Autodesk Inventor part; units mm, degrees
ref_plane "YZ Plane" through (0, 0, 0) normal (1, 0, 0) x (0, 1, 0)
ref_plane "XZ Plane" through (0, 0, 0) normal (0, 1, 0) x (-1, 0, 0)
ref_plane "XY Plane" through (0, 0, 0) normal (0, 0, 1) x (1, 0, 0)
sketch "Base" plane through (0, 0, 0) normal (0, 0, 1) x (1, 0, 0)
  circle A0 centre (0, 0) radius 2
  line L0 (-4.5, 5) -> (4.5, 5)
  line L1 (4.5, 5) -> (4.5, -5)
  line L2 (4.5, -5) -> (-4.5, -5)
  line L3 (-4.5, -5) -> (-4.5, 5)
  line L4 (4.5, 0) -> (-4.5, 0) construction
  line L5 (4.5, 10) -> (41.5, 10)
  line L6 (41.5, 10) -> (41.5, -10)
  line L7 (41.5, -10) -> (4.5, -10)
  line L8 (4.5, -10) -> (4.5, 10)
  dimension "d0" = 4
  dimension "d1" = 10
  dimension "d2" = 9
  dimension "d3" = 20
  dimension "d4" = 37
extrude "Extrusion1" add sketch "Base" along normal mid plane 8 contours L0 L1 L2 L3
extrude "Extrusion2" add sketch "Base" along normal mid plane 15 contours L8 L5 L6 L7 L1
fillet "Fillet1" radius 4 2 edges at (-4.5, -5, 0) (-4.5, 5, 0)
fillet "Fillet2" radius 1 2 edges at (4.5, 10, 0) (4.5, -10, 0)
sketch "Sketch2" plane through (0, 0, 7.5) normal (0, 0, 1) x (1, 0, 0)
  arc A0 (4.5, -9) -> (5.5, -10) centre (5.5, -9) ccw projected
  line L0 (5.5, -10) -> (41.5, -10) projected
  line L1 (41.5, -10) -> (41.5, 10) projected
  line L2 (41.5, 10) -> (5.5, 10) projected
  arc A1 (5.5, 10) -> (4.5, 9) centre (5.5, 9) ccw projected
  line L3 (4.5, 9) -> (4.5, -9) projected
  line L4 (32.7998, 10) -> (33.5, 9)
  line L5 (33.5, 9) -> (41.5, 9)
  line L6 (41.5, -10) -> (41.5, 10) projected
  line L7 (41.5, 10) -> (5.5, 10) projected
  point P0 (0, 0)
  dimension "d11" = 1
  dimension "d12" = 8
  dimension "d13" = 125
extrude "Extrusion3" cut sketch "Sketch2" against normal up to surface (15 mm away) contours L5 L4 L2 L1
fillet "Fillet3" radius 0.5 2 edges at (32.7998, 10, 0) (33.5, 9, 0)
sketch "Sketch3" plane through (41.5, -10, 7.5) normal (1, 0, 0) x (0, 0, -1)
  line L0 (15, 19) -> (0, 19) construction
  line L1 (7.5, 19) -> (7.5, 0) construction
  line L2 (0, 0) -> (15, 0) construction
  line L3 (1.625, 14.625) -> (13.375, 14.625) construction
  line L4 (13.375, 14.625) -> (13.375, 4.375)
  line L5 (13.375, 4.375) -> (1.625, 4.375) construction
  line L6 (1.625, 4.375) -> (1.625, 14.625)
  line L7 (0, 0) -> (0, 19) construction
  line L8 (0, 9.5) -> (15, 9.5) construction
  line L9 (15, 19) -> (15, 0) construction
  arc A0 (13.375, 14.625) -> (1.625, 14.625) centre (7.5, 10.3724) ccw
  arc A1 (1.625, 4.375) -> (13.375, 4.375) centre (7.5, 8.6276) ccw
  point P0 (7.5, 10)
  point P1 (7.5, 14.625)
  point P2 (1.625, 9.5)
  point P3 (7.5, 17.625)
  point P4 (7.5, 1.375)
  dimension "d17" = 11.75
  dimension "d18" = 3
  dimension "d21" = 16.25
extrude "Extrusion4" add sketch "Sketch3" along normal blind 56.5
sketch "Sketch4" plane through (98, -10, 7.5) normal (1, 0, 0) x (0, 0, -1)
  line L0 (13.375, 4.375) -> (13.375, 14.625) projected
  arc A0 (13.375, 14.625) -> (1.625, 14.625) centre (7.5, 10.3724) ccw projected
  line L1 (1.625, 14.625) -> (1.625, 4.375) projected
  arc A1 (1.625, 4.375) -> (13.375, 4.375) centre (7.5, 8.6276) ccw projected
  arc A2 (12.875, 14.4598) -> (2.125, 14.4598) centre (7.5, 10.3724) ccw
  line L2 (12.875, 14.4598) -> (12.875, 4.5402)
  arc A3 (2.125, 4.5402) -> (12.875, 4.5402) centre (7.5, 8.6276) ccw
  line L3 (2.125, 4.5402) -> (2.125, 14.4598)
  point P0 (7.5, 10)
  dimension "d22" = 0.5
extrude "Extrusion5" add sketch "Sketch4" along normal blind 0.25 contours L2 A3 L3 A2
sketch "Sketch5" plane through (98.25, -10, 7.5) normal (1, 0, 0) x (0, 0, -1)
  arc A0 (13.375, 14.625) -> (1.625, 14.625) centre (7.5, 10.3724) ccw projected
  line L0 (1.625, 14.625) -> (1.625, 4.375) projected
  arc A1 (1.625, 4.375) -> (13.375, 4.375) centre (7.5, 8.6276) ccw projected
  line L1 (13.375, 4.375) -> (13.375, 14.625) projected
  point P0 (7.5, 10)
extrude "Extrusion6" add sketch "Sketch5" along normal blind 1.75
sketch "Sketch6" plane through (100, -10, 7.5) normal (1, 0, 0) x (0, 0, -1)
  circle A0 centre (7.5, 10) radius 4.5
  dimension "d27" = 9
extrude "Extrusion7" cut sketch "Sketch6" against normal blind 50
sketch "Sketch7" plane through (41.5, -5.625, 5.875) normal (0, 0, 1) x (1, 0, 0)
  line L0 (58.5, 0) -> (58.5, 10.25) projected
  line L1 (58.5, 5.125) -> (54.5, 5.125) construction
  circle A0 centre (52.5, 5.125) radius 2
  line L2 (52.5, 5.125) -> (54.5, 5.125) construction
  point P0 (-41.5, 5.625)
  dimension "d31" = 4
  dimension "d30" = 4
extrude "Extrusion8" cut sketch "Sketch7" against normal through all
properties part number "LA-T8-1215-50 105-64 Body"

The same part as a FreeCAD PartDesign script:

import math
import FreeCAD as App
import Part
import Sketcher

V = App.Vector
Q = App.Units.Quantity


def edges_at(feature, points):
    """Names of the edges that pass closest to the given points."""
    edges = feature.Shape.Edges
    near = lambda p: min(range(len(edges)), key=lambda i: edges[i].distToShape(Part.Vertex(*p))[0])
    return sorted({f"Edge{near(p) + 1}" for p in points})


def add_polygon(sketch, points):
    """Adds a closed chain of lines whose ends are joined by coincident constraints."""
    first, n = sketch.GeometryCount, len(points)
    for a, b in zip(points, points[1:] + points[:1]):
        sketch.addGeometry(Part.LineSegment(App.Vector(*a, 0), App.Vector(*b, 0)), False)
    for i in range(n):
        sketch.addConstraint(Sketcher.Constraint("Coincident", first + i, 2, first + (i + 1) % n, 1))

doc = App.newDocument("Part")
body = doc.addObject("PartDesign::Body", "Body")

sketch1 = body.newObject("Sketcher::SketchObject", "Sketch")
sketch1.AttachmentSupport = (doc.getObject("XY_Plane"), [""])
sketch1.MapMode = "FlatFace"
add_polygon(sketch1, [(4.5, 5), (-4.5, 5), (-4.5, -5), (4.5, -5)])
sketch1.addGeometry(Part.Circle(V(0, 0, 0), V(0, 0, 1), 2), False)
sketch1.addConstraint([
    Sketcher.Constraint("Horizontal", 0),
    Sketcher.Constraint("Vertical", 1),
    Sketcher.Constraint("Horizontal", 2),
    Sketcher.Constraint("Vertical", 3),
    Sketcher.Constraint("Coincident", 4, 3, -1, 1),
    Sketcher.Constraint("Symmetric", 0, 2, 2, 2, -1, 1),
    Sketcher.Constraint("Diameter", 4, 4.0),
    Sketcher.Constraint("DistanceX", 0, 2, 0, 1, 9.0),
    Sketcher.Constraint("DistanceY", 1, 2, 1, 1, 10.0),
])
pad1 = body.newObject("PartDesign::Pad", "Pad")
pad1.Profile = sketch1
pad1.Length = 8
pad1.Midplane = True

sketch2 = body.newObject("Sketcher::SketchObject", "Sketch001")
sketch2.AttachmentSupport = (doc.getObject("XY_Plane"), [""])
sketch2.MapMode = "FlatFace"
add_polygon(sketch2, [(4.5, 10), (4.5, -10), (41.5, -10), (41.5, 10)])
sketch2.addConstraint([
    Sketcher.Constraint("Vertical", 0),
    Sketcher.Constraint("Horizontal", 1),
    Sketcher.Constraint("Vertical", 2),
    Sketcher.Constraint("Horizontal", 3),
    Sketcher.Constraint("DistanceX", 1, 1, 1, 2, 37.0),
    Sketcher.Constraint("DistanceY", 0, 2, 0, 1, 20.0),
    Sketcher.Constraint("DistanceY", 0, 2, -1, 1, 10.0),
    Sketcher.Constraint("DistanceX", -1, 1, 0, 2, 4.5),
])
pad2 = body.newObject("PartDesign::Pad", "Pad001")
pad2.Profile = sketch2
pad2.Length = 15
pad2.Midplane = True
doc.recompute()

fillet = body.newObject("PartDesign::Fillet", "Fillet")
fillet.Base = (pad2, edges_at(pad2, [(-4.5, -5, 0), (-4.5, 5, 0)]))
fillet.Radius = 4
doc.recompute()

fillet2 = body.newObject("PartDesign::Fillet", "Fillet001")
fillet2.Base = (fillet, edges_at(fillet, [(4.5, 10, 0), (4.5, -10, 0)]))
fillet2.Radius = 1

sketch3 = body.newObject("Sketcher::SketchObject", "Sketch002")
sketch3.AttachmentSupport = (doc.getObject("XY_Plane"), [""])
sketch3.MapMode = "FlatFace"
sketch3.AttachmentOffset = App.Placement(V(0, 0, 7.5), App.Rotation())
add_polygon(sketch3, [(33.5, 9), (41.5, 9), (41.5, 10), (32.7998, 10)])
sketch3.addConstraint([
    Sketcher.Constraint("Horizontal", 0),
    Sketcher.Constraint("Vertical", 1),
    Sketcher.Constraint("Horizontal", 2),
    Sketcher.Constraint("DistanceX", 0, 1, 0, 2, 8.0),
    Sketcher.Constraint("DistanceY", 1, 1, 1, 2, 1.0),
    Sketcher.Constraint("Angle", 3, Q("-55.0003 deg")),
    Sketcher.Constraint("DistanceY", -1, 1, 0, 2, 9.0),
    Sketcher.Constraint("DistanceX", -1, 1, 0, 2, 41.5),
])
pocket1 = body.newObject("PartDesign::Pocket", "Pocket")
pocket1.Profile = sketch3
pocket1.Length = 15
doc.recompute()

fillet3 = body.newObject("PartDesign::Fillet", "Fillet002")
fillet3.Base = (pocket1, edges_at(pocket1, [(32.8, 10, 0), (33.5, 9, 0)]))
fillet3.Radius = 0.5

sketch4 = body.newObject("Sketcher::SketchObject", "Sketch003")
sketch4.AttachmentSupport = (doc.getObject("YZ_Plane"), [""])
sketch4.MapMode = "FlatFace"
sketch4.AttachmentOffset = App.Placement(V(0, 0, 41.5), App.Rotation())
sketch4.addGeometry([
    Part.LineSegment(V(-5.625, -5.875, 0), V(4.625, -5.875, 0)),
    Part.ArcOfCircle(Part.Circle(V(0.3724, 0, 0), V(0, 0, 1), 7.252602), math.radians(-54.101221), math.radians(54.101221)),
    Part.LineSegment(V(4.625, 5.875, 0), V(-5.625, 5.875, 0)),
    Part.ArcOfCircle(Part.Circle(V(-1.3724, 0, 0), V(0, 0, 1), 7.252602), math.radians(125.898779), math.radians(234.101221)),
], False)
sketch4.addConstraint([
    Sketcher.Constraint("Coincident", 0, 2, 1, 1),
    Sketcher.Constraint("Coincident", 1, 2, 2, 1),
    Sketcher.Constraint("Coincident", 2, 2, 3, 1),
    Sketcher.Constraint("Coincident", 3, 2, 0, 1),
    Sketcher.Constraint("Horizontal", 0),
    Sketcher.Constraint("Horizontal", 2),
    Sketcher.Constraint("Equal", 1, 3),
    Sketcher.Constraint("Symmetric", 0, 2, 1, 2, -1),
    Sketcher.Constraint("PointOnObject", 3, 3, -1),
    Sketcher.Constraint("DistanceY", 0, 2, 1, 2, 11.75),
    Sketcher.Constraint("DistanceX", 0, 1, 0, 2, 10.25),
    Sketcher.Constraint("Radius", 1, 7.2526),
    Sketcher.Constraint("DistanceX", -1, 1, 0, 2, 4.625),
])
pad3 = body.newObject("PartDesign::Pad", "Pad002")
pad3.Profile = sketch4
pad3.Length = 56.5

sketch5 = body.newObject("Sketcher::SketchObject", "Sketch004")
sketch5.AttachmentSupport = (doc.getObject("YZ_Plane"), [""])
sketch5.MapMode = "FlatFace"
sketch5.AttachmentOffset = App.Placement(V(0, 0, 98), App.Rotation())
sketch5.addGeometry([
    Part.LineSegment(V(-5.4598, -5.375, 0), V(4.4598, -5.375, 0)),
    Part.ArcOfCircle(Part.Circle(V(0.3724, 0, 0), V(0, 0, 1), 6.752589), math.radians(-52.748953), math.radians(52.748953)),
    Part.LineSegment(V(4.4598, 5.375, 0), V(-5.4598, 5.375, 0)),
    Part.ArcOfCircle(Part.Circle(V(-1.3724, 0, 0), V(0, 0, 1), 6.752589), math.radians(127.251047), math.radians(232.748953)),
], False)
sketch5.addConstraint([
    Sketcher.Constraint("Coincident", 0, 2, 1, 1),
    Sketcher.Constraint("Coincident", 1, 2, 2, 1),
    Sketcher.Constraint("Coincident", 2, 2, 3, 1),
    Sketcher.Constraint("Coincident", 3, 2, 0, 1),
    Sketcher.Constraint("Horizontal", 0),
    Sketcher.Constraint("Horizontal", 2),
    Sketcher.Constraint("Equal", 1, 3),
    Sketcher.Constraint("Symmetric", 0, 2, 1, 2, -1),
    Sketcher.Constraint("PointOnObject", 3, 3, -1),
    Sketcher.Constraint("Radius", 1, 6.7526),
    Sketcher.Constraint("DistanceY", 0, 2, 1, 2, 10.75),
    Sketcher.Constraint("DistanceX", 0, 1, 0, 2, 9.9196),
    Sketcher.Constraint("DistanceX", -1, 1, 1, 3, 0.3724),
])
pad4 = body.newObject("PartDesign::Pad", "Pad003")
pad4.Profile = sketch5
pad4.Length = 0.25

sketch6 = body.newObject("Sketcher::SketchObject", "Sketch005")
sketch6.AttachmentSupport = (doc.getObject("YZ_Plane"), [""])
sketch6.MapMode = "FlatFace"
sketch6.AttachmentOffset = App.Placement(V(0, 0, 98.25), App.Rotation())
sketch6.addGeometry([
    Part.LineSegment(V(-5.625, -5.875, 0), V(4.625, -5.875, 0)),
    Part.ArcOfCircle(Part.Circle(V(0.3724, 0, 0), V(0, 0, 1), 7.252602), math.radians(-54.101221), math.radians(54.101221)),
    Part.LineSegment(V(4.625, 5.875, 0), V(-5.625, 5.875, 0)),
    Part.ArcOfCircle(Part.Circle(V(-1.3724, 0, 0), V(0, 0, 1), 7.252602), math.radians(125.898779), math.radians(234.101221)),
], False)
sketch6.addConstraint([
    Sketcher.Constraint("Coincident", 0, 2, 1, 1),
    Sketcher.Constraint("Coincident", 1, 2, 2, 1),
    Sketcher.Constraint("Coincident", 2, 2, 3, 1),
    Sketcher.Constraint("Coincident", 3, 2, 0, 1),
    Sketcher.Constraint("Horizontal", 0),
    Sketcher.Constraint("Horizontal", 2),
    Sketcher.Constraint("Equal", 1, 3),
    Sketcher.Constraint("Symmetric", 0, 2, 1, 2, -1),
    Sketcher.Constraint("PointOnObject", 3, 3, -1),
    Sketcher.Constraint("DistanceX", 0, 1, 0, 2, 10.25),
    Sketcher.Constraint("Radius", 1, 7.2526),
    Sketcher.Constraint("DistanceY", 0, 2, 1, 2, 11.75),
    Sketcher.Constraint("DistanceX", -1, 1, 0, 2, 4.625),
])
pad5 = body.newObject("PartDesign::Pad", "Pad004")
pad5.Profile = sketch6
pad5.Length = 1.75

sketch7 = body.newObject("Sketcher::SketchObject", "Sketch006")
sketch7.AttachmentSupport = (doc.getObject("YZ_Plane"), [""])
sketch7.MapMode = "FlatFace"
sketch7.AttachmentOffset = App.Placement(V(0, 0, 100), App.Rotation())
sketch7.addGeometry(Part.Circle(V(0, 0, 0), V(0, 0, 1), 4.5), False)
sketch7.addConstraint([
    Sketcher.Constraint("Coincident", 0, 3, -1, 1),
    Sketcher.Constraint("Diameter", 0, 9.0),
])
pocket2 = body.newObject("PartDesign::Pocket", "Pocket001")
pocket2.Profile = sketch7
pocket2.Length = 50

sketch8 = body.newObject("Sketcher::SketchObject", "Sketch007")
sketch8.AttachmentSupport = (doc.getObject("XY_Plane"), [""])
sketch8.MapMode = "FlatFace"
sketch8.AttachmentOffset = App.Placement(V(0, 0, 5.875), App.Rotation())
sketch8.addGeometry(Part.Circle(V(94, -0.5, 0), V(0, 0, 1), 2), False)
sketch8.addConstraint([
    Sketcher.Constraint("Diameter", 0, 4.0),
    Sketcher.Constraint("DistanceX", -1, 1, 0, 3, 94.0),
    Sketcher.Constraint("DistanceY", 0, 3, -1, 1, 0.5),
])
pocket3 = body.newObject("PartDesign::Pocket", "Pocket002")
pocket3.Profile = sketch8
pocket3.Type = "ThroughAll"

doc.recompute()
